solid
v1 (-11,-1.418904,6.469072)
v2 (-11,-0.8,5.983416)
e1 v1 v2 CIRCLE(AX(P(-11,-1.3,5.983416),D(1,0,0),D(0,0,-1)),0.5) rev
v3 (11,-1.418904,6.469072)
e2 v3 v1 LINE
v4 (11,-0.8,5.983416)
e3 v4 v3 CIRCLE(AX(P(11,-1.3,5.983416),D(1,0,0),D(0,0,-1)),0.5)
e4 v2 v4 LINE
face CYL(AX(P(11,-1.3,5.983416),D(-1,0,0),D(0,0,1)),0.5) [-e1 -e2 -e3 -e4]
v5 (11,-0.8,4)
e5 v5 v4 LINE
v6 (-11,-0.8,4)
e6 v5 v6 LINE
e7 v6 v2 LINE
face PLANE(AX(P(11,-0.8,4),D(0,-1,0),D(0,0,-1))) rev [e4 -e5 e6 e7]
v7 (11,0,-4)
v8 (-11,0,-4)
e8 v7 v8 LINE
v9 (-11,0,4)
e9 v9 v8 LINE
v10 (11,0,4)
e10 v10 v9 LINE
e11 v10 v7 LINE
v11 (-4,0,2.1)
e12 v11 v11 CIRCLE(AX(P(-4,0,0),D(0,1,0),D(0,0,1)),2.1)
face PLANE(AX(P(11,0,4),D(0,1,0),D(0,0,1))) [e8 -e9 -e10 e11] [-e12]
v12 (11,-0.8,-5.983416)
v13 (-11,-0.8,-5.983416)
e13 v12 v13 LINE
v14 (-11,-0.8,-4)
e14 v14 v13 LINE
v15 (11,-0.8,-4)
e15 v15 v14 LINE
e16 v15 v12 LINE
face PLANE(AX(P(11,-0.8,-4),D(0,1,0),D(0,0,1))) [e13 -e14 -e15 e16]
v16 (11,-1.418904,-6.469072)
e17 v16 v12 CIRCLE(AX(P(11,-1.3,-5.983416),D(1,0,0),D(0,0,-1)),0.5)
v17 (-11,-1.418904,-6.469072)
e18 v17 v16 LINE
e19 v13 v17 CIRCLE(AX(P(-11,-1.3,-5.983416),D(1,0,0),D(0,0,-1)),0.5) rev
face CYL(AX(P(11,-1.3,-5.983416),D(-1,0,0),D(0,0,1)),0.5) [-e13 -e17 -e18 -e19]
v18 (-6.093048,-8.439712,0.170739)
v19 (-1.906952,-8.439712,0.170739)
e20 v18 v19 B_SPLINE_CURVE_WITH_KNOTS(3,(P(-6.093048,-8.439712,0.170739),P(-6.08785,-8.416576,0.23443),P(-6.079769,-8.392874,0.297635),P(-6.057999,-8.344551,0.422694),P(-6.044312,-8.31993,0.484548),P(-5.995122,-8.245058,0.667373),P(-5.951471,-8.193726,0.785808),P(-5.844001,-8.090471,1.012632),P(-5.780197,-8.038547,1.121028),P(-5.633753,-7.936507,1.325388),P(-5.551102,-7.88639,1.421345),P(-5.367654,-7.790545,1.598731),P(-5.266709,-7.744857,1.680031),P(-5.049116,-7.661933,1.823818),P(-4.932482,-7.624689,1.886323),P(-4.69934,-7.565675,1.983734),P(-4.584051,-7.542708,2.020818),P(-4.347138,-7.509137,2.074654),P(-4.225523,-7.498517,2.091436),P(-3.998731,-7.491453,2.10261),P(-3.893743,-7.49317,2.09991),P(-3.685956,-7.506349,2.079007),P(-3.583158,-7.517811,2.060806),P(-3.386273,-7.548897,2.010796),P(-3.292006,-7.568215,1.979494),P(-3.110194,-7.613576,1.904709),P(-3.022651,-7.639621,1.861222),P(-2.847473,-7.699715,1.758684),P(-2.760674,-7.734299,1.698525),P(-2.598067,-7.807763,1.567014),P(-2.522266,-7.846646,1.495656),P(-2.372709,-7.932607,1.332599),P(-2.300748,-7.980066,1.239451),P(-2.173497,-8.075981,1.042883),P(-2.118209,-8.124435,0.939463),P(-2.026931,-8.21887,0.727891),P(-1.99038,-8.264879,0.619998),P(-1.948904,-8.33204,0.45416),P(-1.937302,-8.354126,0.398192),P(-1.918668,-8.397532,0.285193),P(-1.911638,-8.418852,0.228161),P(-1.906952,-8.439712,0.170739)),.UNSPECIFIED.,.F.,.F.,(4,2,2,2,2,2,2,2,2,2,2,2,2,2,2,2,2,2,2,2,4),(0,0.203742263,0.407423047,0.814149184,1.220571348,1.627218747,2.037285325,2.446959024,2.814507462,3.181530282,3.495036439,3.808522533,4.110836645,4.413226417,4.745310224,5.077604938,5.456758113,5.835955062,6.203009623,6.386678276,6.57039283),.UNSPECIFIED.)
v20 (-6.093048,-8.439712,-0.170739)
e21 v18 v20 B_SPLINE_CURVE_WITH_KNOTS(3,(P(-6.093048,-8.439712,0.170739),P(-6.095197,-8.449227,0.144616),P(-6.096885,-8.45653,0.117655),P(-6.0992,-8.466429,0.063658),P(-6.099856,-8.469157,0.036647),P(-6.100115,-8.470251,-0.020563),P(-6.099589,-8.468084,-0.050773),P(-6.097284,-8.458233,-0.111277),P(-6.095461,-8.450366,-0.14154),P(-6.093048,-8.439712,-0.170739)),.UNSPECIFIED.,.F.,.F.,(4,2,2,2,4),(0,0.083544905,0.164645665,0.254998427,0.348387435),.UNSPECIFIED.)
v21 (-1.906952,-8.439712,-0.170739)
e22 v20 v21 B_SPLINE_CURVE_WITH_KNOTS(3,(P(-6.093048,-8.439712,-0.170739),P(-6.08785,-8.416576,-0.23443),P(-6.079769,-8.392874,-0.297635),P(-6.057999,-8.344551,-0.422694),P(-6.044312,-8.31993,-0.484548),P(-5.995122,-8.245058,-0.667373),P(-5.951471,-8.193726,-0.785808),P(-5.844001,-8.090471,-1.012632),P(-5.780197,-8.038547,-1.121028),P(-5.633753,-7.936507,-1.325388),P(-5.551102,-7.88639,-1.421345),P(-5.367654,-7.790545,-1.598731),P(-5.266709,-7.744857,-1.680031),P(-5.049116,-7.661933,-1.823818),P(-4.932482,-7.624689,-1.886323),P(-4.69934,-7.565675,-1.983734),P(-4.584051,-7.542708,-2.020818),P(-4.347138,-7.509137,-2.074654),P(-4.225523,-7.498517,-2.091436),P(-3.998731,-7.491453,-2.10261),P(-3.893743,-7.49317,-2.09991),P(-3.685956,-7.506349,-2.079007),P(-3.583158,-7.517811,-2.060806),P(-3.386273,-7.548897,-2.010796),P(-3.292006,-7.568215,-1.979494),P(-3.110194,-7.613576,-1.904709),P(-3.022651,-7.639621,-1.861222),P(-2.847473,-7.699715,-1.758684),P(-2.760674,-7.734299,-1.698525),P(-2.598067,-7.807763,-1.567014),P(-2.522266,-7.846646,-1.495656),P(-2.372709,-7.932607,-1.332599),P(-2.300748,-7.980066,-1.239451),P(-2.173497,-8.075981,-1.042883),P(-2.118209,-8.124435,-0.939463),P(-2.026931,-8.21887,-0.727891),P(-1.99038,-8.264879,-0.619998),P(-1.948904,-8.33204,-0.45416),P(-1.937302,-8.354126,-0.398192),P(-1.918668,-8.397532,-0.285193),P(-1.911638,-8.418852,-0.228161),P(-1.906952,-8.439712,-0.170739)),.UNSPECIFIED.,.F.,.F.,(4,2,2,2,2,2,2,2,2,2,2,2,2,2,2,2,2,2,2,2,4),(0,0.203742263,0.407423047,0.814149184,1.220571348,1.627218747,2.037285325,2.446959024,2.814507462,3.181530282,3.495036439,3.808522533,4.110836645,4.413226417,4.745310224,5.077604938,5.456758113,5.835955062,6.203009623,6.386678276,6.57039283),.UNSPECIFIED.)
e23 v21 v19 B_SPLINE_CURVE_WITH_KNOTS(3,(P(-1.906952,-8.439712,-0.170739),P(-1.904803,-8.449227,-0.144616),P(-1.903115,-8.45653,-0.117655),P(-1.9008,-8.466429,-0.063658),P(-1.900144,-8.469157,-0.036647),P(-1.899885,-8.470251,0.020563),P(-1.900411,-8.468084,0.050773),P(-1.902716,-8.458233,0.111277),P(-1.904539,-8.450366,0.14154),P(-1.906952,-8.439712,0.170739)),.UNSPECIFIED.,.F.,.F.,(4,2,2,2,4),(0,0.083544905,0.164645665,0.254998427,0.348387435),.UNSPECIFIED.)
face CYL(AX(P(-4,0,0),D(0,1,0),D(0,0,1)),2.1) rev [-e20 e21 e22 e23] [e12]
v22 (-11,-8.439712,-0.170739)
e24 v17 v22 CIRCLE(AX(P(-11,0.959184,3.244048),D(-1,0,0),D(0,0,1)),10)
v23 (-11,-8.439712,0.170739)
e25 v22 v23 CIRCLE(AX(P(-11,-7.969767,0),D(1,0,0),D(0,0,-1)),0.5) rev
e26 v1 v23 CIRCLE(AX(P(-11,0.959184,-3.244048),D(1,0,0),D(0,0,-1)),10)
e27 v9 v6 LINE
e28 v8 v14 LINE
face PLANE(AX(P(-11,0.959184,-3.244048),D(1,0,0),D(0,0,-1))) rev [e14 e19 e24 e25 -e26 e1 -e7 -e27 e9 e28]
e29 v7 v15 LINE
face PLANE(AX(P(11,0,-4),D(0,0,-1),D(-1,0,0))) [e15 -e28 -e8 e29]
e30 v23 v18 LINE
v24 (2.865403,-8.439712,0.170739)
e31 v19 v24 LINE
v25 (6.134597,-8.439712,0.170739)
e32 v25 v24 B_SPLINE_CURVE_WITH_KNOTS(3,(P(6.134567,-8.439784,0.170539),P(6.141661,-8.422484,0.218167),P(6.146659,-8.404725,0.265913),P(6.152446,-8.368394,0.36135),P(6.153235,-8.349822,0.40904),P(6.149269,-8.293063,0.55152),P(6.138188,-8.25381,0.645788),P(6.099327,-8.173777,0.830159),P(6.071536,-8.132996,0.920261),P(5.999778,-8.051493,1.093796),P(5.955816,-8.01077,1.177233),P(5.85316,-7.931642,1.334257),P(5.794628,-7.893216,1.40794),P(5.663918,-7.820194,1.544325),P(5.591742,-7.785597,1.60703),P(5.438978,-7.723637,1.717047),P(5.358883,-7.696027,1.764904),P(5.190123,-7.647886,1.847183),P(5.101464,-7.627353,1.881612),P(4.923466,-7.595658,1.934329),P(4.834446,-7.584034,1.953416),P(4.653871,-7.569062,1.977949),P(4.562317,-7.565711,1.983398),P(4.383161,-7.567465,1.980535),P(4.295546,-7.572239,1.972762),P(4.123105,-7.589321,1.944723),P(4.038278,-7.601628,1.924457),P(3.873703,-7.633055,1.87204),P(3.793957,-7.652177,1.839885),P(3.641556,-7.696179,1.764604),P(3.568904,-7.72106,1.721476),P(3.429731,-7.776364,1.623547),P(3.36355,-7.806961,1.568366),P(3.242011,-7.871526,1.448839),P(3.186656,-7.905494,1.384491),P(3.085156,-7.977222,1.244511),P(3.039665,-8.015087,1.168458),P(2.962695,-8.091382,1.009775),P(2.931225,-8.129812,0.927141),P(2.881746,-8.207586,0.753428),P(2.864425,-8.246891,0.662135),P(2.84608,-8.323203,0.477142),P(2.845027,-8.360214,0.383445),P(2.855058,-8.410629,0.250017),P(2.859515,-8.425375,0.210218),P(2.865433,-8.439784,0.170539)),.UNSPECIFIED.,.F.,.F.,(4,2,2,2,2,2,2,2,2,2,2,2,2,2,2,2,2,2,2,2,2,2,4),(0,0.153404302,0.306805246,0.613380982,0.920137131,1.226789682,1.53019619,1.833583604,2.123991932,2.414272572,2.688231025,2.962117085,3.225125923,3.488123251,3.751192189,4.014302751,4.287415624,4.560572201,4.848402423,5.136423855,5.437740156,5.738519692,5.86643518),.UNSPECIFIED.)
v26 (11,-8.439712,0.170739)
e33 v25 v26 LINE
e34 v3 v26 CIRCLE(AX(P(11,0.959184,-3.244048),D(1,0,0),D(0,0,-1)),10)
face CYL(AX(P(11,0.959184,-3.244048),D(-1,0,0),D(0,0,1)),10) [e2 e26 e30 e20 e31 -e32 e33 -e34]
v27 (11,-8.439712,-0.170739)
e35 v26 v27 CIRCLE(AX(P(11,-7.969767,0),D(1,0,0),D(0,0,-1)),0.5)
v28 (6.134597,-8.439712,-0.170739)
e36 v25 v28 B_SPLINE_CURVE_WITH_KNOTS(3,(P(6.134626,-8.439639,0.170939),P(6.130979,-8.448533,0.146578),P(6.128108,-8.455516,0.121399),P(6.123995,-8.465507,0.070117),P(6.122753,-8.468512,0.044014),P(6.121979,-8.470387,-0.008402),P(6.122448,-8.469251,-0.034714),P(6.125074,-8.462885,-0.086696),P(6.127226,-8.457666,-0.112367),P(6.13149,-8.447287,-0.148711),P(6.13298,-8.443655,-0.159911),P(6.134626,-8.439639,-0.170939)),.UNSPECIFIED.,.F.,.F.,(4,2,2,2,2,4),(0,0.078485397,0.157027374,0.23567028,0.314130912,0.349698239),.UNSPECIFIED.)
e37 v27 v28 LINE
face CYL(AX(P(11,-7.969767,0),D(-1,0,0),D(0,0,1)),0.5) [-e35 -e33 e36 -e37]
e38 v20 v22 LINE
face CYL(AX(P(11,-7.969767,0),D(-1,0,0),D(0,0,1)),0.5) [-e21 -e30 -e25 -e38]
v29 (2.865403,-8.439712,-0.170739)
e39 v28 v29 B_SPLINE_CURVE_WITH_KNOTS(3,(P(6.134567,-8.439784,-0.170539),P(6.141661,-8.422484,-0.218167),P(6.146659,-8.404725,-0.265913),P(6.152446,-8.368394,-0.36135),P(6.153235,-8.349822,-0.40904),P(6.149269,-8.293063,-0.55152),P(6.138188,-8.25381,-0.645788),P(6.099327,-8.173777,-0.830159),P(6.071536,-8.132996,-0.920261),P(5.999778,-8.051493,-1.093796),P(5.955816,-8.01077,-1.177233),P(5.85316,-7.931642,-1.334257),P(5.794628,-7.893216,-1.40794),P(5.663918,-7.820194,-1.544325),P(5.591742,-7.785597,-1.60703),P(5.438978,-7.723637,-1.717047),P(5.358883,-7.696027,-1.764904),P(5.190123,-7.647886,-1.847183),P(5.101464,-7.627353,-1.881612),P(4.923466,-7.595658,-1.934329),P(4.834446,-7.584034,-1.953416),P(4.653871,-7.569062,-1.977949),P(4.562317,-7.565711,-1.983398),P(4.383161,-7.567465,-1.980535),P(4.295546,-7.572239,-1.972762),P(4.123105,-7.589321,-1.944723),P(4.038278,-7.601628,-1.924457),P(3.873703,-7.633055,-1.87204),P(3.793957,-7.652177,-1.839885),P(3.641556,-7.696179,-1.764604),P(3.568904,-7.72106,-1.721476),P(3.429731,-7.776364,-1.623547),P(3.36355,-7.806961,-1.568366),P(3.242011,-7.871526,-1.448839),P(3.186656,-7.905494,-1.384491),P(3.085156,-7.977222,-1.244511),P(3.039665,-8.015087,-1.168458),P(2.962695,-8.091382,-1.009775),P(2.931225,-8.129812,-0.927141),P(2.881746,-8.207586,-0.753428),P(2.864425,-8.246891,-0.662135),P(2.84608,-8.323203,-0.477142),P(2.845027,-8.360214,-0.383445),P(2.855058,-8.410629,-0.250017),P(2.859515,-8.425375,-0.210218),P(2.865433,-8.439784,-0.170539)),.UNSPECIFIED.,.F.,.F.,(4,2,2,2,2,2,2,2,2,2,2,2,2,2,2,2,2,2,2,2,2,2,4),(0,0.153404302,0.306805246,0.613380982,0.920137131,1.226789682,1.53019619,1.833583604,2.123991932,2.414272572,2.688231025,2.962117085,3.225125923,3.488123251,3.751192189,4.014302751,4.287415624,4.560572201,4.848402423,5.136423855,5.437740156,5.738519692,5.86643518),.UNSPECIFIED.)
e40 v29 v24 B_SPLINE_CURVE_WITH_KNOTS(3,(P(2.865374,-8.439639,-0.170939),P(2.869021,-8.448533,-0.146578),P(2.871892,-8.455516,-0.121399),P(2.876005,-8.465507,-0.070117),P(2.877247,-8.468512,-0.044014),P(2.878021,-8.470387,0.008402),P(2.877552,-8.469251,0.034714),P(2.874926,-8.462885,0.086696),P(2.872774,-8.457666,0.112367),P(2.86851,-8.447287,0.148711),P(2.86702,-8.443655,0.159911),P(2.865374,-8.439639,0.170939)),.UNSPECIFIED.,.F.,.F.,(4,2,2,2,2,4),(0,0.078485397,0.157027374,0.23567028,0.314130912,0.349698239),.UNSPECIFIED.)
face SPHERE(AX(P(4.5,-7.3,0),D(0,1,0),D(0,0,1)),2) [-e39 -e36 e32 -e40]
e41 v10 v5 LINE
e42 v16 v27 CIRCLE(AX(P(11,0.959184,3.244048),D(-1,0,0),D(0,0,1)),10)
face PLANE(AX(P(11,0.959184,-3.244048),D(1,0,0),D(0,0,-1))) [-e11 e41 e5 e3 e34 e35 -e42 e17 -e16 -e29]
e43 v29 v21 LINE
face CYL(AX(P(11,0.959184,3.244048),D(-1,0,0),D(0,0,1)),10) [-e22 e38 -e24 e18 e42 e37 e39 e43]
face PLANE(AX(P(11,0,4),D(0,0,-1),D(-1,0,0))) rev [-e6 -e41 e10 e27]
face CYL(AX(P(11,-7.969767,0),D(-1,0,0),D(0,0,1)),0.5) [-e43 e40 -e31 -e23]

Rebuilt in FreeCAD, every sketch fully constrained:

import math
import FreeCAD as App
import Part
import Sketcher


def edges_at(feature, points):
    """Names of the edges that pass closest to the given points."""
    edges = feature.Shape.Edges
    near = lambda p: min(range(len(edges)), key=lambda i: edges[i].distToShape(Part.Vertex(*p))[0])
    return sorted({f"Edge{near(p) + 1}" for p in points})

doc = App.newDocument("Part")
body = doc.addObject("PartDesign::Body", "Body")

# Sketch on YZ plane
sketch1 = doc.addObject("Sketcher::SketchObject", "Sketch")
body.addObject(sketch1)
sketch1.AttachmentSupport = (doc.YZ_Plane, [""])
sketch1.MapMode = "FlatFace"
sketch1.addGeometry(Part.LineSegment(App.Vector(0, -4, 0), App.Vector(0, 4, 0)), False)
sketch1.addGeometry(Part.LineSegment(App.Vector(0, 4, 0), App.Vector(-0.8, 4, 0)), False)
sketch1.addGeometry(Part.LineSegment(App.Vector(-0.8, 4, 0), App.Vector(-0.8, 6.6, 0)), False)
sketch1.addGeometry(Part.ArcOfCircle(Part.Circle(App.Vector(1, -3.2, 0), App.Vector(0, 0, 1), 10), math.radians(100), math.radians(161)), False)
sketch1.addGeometry(Part.ArcOfCircle(Part.Circle(App.Vector(1, 3.2, 0), App.Vector(0, 0, 1), 10), math.radians(-161), math.radians(-100)), False)
sketch1.addGeometry(Part.LineSegment(App.Vector(-0.8, -6.6, 0), App.Vector(-0.8, -4, 0)), False)
sketch1.addGeometry(Part.LineSegment(App.Vector(-0.8, -4, 0), App.Vector(0, -4, 0)), False)
sketch1.addConstraint(Sketcher.Constraint("Coincident", 0, 2, 1, 1))
sketch1.addConstraint(Sketcher.Constraint("Coincident", 1, 2, 2, 1))
sketch1.addConstraint(Sketcher.Constraint("Coincident", 2, 2, 3, 1))
sketch1.addConstraint(Sketcher.Constraint("Coincident", 3, 2, 4, 1))
sketch1.addConstraint(Sketcher.Constraint("Coincident", 4, 2, 5, 1))
sketch1.addConstraint(Sketcher.Constraint("Coincident", 5, 2, 6, 1))
sketch1.addConstraint(Sketcher.Constraint("Coincident", 6, 2, 0, 1))
sketch1.addConstraint(Sketcher.Constraint("Vertical", 0))
sketch1.addConstraint(Sketcher.Constraint("Horizontal", 1))
sketch1.addConstraint(Sketcher.Constraint("Vertical", 2))
sketch1.addConstraint(Sketcher.Constraint("Vertical", 5))
sketch1.addConstraint(Sketcher.Constraint("Horizontal", 6))
sketch1.addConstraint(Sketcher.Constraint("Equal", 3, 4))
sketch1.addConstraint(Sketcher.Constraint("Symmetric", 0, 2, 6, 2, -1, 1))
sketch1.addConstraint(Sketcher.Constraint("Symmetric", 3, 3, 4, 3, -1))
sketch1.addConstraint(Sketcher.Constraint("Vertical", 2, 2, 4, 2))
sketch1.addConstraint(Sketcher.Constraint("Radius", 3, 10.0))
sketch1.addConstraint(Sketcher.Constraint("DistanceY", 0, 1, 0, 2, 8.0))
sketch1.addConstraint(Sketcher.Constraint("DistanceX", 1, 2, 1, 1, 0.8))
sketch1.addConstraint(Sketcher.Constraint("DistanceY", 2, 1, 2, 2, 2.6))
sketch1.addConstraint(Sketcher.Constraint("DistanceX", 3, 2, -1, 1, 8.5))
pad1 = doc.addObject("PartDesign::Pad", "Pad")
body.addObject(pad1)
pad1.Profile = sketch1
pad1.Length = 22
pad1.Midplane = True
doc.recompute()

fillet = doc.addObject("PartDesign::Fillet", "Fillet")
body.addObject(fillet)
fillet.Base = (pad1, edges_at(pad1, [(0, -0.8, -6.6), (0, -8.5, 0), (0, -0.8, 6.6)]))
fillet.Radius = 0.5

# Sketch on XZ plane
sketch2 = doc.addObject("Sketcher::SketchObject", "Sketch001")
body.addObject(sketch2)
sketch2.AttachmentSupport = (doc.XZ_Plane, [""])
sketch2.MapMode = "FlatFace"
sketch2.addGeometry(Part.Circle(App.Vector(-4, 0, 0), App.Vector(0, 0, 1), 2.1), False)
sketch2.addConstraint(Sketcher.Constraint("PointOnObject", 0, 3, -1))
sketch2.addConstraint(Sketcher.Constraint("Diameter", 0, 4.2))
sketch2.addConstraint(Sketcher.Constraint("DistanceX", 0, 3, -1, 1, 4.0))
doc.recompute()
hole = doc.addObject("PartDesign::Hole", "Hole")
body.addObject(hole)
hole.Profile = sketch2
hole.ThreadType = "None"
hole.Diameter = 4.2
hole.DepthType = "ThroughAll"
hole.Reversed = True

# Sketch on YZ plane
sketch3 = doc.addObject("Sketcher::SketchObject", "Sketch002")
body.addObject(sketch3)
sketch3.AttachmentSupport = (doc.YZ_Plane, [""])
sketch3.MapMode = "FlatFace"
sketch3.AttachmentOffset = App.Placement(App.Vector(0, 0, 4.5), App.Rotation())
sketch3.addGeometry(Part.LineSegment(App.Vector(-5.3, 0, 0), App.Vector(-9.3, 0, 0)), False)
sketch3.addGeometry(Part.ArcOfCircle(Part.Circle(App.Vector(-7.3, 0, 0), App.Vector(0, 0, 1), 2), math.radians(0), math.radians(180)), False)
sketch3.addConstraint(Sketcher.Constraint("Coincident", 0, 1, 1, 1))
sketch3.addConstraint(Sketcher.Constraint("Coincident", 1, 2, 0, 2))
sketch3.addConstraint(Sketcher.Constraint("Horizontal", 0))
sketch3.addConstraint(Sketcher.Constraint("PointOnObject", 1, 3, -1))
sketch3.addConstraint(Sketcher.Constraint("PointOnObject", 0, 1, -1))
sketch3.addConstraint(Sketcher.Constraint("Radius", 1, 2.0))
sketch3.addConstraint(Sketcher.Constraint("DistanceX", 1, 3, -1, 1, 7.3))
revolution = doc.addObject("PartDesign::Revolution", "Revolution")
body.addObject(revolution)
revolution.Profile = sketch3
revolution.ReferenceAxis = (sketch3, ["H_Axis"])
revolution.Angle = 360

doc.recompute()
